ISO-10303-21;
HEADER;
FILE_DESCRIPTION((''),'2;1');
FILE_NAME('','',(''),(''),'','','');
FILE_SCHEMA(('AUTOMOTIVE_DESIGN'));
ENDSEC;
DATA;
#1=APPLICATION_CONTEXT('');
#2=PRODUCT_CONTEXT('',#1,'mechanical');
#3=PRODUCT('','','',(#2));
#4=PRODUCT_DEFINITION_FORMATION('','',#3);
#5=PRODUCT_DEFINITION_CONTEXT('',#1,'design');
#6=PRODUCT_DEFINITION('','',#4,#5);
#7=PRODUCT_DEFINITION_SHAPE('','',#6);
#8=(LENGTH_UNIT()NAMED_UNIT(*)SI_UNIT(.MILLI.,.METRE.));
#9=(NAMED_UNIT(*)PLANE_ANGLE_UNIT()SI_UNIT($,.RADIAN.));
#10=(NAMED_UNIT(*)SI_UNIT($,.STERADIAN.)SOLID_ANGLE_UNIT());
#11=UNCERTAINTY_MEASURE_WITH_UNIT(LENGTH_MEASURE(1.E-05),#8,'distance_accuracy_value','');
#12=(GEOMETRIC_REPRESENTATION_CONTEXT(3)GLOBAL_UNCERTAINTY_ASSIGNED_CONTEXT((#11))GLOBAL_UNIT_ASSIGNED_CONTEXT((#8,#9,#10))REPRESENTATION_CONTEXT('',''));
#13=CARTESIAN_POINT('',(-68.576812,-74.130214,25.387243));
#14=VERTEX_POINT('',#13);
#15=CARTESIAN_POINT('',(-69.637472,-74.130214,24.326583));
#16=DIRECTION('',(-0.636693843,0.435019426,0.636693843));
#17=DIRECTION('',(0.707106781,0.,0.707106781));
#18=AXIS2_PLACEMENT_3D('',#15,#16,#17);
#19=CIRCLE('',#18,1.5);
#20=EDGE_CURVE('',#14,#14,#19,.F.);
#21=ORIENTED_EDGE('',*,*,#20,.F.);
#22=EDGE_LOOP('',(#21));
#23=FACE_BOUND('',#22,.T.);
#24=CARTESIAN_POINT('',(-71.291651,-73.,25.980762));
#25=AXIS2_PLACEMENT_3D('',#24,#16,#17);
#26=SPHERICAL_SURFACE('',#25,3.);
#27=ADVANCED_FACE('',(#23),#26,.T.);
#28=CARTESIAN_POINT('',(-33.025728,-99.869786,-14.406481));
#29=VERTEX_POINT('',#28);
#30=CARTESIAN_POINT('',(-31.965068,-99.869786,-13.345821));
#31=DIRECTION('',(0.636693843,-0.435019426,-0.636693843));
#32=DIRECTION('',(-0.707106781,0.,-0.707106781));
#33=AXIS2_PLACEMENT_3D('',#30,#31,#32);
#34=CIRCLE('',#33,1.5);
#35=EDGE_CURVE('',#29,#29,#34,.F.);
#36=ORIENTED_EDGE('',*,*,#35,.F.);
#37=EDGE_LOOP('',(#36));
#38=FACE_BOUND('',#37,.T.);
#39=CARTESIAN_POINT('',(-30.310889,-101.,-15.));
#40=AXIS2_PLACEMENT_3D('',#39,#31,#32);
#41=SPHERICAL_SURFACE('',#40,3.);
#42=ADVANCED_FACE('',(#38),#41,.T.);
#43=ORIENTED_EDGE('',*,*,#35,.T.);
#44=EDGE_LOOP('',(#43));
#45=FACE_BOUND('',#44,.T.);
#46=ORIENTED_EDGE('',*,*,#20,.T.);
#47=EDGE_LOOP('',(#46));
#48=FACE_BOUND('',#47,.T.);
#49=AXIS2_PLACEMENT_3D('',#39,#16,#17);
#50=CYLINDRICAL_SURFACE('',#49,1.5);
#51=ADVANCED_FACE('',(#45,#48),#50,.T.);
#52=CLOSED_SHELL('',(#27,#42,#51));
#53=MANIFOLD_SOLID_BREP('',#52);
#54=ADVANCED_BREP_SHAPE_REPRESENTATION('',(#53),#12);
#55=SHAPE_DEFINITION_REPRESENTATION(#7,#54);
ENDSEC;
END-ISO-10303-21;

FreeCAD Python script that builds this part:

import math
import FreeCAD as App
import Part
import Sketcher

V = App.Vector
Q = App.Units.Quantity

doc = App.newDocument("Part")
body = doc.addObject("PartDesign::Body", "Body")

# Sketch on an angled plane
sketch1 = body.newObject("Sketcher::SketchObject", "Sketch")
sketch1.Placement = App.Placement(V(-19.213083, 13.127289, 19.213083), App.Rotation(V(-0.771116691, -0.359185832, -0.525703897), V(0, 0.825677684, -0.564142148), V(0.636693843, -0.435019426, -0.636693843), "ZXY"))
sketch1.addGeometry(Part.Circle(V(67.53656, -74.931314, 0), V(0, 0, 1), 1.5), False)
sketch1.addConstraint(Sketcher.Constraint("Diameter", 0, Q("3 mm")))
sketch1.addConstraint(Sketcher.Constraint("DistanceX", -1, 1, 0, 3, Q("67.53656 mm")))
sketch1.addConstraint(Sketcher.Constraint("DistanceY", 0, 3, -1, 1, Q("74.931314 mm")))
pad1 = body.newObject("PartDesign::Pad", "Pad")
pad1.Profile = sketch1
pad1.Length = 64.364942

# Sketch on XZ plane
sketch2 = body.newObject("Sketcher::SketchObject", "Sketch001")
sketch2.AttachmentSupport = (doc.getObject("XZ_Plane"), [""])
sketch2.MapMode = "FlatFace"
sketch2.AttachmentOffset = App.Placement(V(0, 0, 73), App.Rotation())
sketch2.addGeometry(Part.LineSegment(V(-71.291651, 28.980762, 0), V(-71.291651, 22.980762, 0)), False)
sketch2.addGeometry(Part.ArcOfCircle(Part.Circle(V(-71.291651, 25.980762, 0), V(0, 0, 1), 3), math.radians(-90), math.radians(90)), False)
sketch2.addGeometry(Part.LineSegment(V(-71.291651, 22.980762, 0), V(-71.291651, 28.980762, 0)), True)  # axis
sketch2.addConstraint(Sketcher.Constraint("Coincident", 0, 1, 1, 2))
sketch2.addConstraint(Sketcher.Constraint("Coincident", 1, 1, 0, 2))
sketch2.addConstraint(Sketcher.Constraint("Vertical", 0))
sketch2.addConstraint(Sketcher.Constraint("Vertical", 2))
sketch2.addConstraint(Sketcher.Constraint("Coincident", 2, 1, 1, 1))
sketch2.addConstraint(Sketcher.Constraint("Vertical", 1, 3, 0, 1))
sketch2.addConstraint(Sketcher.Constraint("Equal", 0, 2))
sketch2.addConstraint(Sketcher.Constraint("Radius", 1, Q("3 mm")))
sketch2.addConstraint(Sketcher.Constraint("DistanceX", 1, 3, -1, 1, Q("71.291651 mm")))
sketch2.addConstraint(Sketcher.Constraint("DistanceY", -1, 1, 1, 3, Q("25.980762 mm")))
revolution = body.newObject("PartDesign::Revolution", "Revolution")
revolution.Profile = sketch2
revolution.ReferenceAxis = (sketch2, ["Axis0"])
revolution.Angle = 360

# Sketch on XZ plane
sketch3 = body.newObject("Sketcher::SketchObject", "Sketch002")
sketch3.AttachmentSupport = (doc.getObject("XZ_Plane"), [""])
sketch3.MapMode = "FlatFace"
sketch3.AttachmentOffset = App.Placement(V(0, 0, 101), App.Rotation())
sketch3.addGeometry(Part.LineSegment(V(-30.310889, -12, 0), V(-30.310889, -18, 0)), False)
sketch3.addGeometry(Part.ArcOfCircle(Part.Circle(V(-30.310889, -15, 0), V(0, 0, 1), 3), math.radians(-90), math.radians(90)), False)
sketch3.addGeometry(Part.LineSegment(V(-30.310889, -18, 0), V(-30.310889, -12, 0)), True)  # axis
sketch3.addConstraint(Sketcher.Constraint("Coincident", 0, 1, 1, 2))
sketch3.addConstraint(Sketcher.Constraint("Coincident", 1, 1, 0, 2))
sketch3.addConstraint(Sketcher.Constraint("Vertical", 0))
sketch3.addConstraint(Sketcher.Constraint("Vertical", 2))
sketch3.addConstraint(Sketcher.Constraint("Coincident", 2, 1, 1, 1))
sketch3.addConstraint(Sketcher.Constraint("Vertical", 1, 3, 0, 1))
sketch3.addConstraint(Sketcher.Constraint("Equal", 0, 2))
sketch3.addConstraint(Sketcher.Constraint("Radius", 1, Q("3 mm")))
sketch3.addConstraint(Sketcher.Constraint("DistanceY", 1, 3, -1, 1, Q("15 mm")))
sketch3.addConstraint(Sketcher.Constraint("DistanceX", 1, 3, -1, 1, Q("30.310889 mm")))
revolution2 = body.newObject("PartDesign::Revolution", "Revolution001")
revolution2.Profile = sketch3
revolution2.ReferenceAxis = (sketch3, ["Axis0"])
revolution2.Angle = 360

doc.recompute()
